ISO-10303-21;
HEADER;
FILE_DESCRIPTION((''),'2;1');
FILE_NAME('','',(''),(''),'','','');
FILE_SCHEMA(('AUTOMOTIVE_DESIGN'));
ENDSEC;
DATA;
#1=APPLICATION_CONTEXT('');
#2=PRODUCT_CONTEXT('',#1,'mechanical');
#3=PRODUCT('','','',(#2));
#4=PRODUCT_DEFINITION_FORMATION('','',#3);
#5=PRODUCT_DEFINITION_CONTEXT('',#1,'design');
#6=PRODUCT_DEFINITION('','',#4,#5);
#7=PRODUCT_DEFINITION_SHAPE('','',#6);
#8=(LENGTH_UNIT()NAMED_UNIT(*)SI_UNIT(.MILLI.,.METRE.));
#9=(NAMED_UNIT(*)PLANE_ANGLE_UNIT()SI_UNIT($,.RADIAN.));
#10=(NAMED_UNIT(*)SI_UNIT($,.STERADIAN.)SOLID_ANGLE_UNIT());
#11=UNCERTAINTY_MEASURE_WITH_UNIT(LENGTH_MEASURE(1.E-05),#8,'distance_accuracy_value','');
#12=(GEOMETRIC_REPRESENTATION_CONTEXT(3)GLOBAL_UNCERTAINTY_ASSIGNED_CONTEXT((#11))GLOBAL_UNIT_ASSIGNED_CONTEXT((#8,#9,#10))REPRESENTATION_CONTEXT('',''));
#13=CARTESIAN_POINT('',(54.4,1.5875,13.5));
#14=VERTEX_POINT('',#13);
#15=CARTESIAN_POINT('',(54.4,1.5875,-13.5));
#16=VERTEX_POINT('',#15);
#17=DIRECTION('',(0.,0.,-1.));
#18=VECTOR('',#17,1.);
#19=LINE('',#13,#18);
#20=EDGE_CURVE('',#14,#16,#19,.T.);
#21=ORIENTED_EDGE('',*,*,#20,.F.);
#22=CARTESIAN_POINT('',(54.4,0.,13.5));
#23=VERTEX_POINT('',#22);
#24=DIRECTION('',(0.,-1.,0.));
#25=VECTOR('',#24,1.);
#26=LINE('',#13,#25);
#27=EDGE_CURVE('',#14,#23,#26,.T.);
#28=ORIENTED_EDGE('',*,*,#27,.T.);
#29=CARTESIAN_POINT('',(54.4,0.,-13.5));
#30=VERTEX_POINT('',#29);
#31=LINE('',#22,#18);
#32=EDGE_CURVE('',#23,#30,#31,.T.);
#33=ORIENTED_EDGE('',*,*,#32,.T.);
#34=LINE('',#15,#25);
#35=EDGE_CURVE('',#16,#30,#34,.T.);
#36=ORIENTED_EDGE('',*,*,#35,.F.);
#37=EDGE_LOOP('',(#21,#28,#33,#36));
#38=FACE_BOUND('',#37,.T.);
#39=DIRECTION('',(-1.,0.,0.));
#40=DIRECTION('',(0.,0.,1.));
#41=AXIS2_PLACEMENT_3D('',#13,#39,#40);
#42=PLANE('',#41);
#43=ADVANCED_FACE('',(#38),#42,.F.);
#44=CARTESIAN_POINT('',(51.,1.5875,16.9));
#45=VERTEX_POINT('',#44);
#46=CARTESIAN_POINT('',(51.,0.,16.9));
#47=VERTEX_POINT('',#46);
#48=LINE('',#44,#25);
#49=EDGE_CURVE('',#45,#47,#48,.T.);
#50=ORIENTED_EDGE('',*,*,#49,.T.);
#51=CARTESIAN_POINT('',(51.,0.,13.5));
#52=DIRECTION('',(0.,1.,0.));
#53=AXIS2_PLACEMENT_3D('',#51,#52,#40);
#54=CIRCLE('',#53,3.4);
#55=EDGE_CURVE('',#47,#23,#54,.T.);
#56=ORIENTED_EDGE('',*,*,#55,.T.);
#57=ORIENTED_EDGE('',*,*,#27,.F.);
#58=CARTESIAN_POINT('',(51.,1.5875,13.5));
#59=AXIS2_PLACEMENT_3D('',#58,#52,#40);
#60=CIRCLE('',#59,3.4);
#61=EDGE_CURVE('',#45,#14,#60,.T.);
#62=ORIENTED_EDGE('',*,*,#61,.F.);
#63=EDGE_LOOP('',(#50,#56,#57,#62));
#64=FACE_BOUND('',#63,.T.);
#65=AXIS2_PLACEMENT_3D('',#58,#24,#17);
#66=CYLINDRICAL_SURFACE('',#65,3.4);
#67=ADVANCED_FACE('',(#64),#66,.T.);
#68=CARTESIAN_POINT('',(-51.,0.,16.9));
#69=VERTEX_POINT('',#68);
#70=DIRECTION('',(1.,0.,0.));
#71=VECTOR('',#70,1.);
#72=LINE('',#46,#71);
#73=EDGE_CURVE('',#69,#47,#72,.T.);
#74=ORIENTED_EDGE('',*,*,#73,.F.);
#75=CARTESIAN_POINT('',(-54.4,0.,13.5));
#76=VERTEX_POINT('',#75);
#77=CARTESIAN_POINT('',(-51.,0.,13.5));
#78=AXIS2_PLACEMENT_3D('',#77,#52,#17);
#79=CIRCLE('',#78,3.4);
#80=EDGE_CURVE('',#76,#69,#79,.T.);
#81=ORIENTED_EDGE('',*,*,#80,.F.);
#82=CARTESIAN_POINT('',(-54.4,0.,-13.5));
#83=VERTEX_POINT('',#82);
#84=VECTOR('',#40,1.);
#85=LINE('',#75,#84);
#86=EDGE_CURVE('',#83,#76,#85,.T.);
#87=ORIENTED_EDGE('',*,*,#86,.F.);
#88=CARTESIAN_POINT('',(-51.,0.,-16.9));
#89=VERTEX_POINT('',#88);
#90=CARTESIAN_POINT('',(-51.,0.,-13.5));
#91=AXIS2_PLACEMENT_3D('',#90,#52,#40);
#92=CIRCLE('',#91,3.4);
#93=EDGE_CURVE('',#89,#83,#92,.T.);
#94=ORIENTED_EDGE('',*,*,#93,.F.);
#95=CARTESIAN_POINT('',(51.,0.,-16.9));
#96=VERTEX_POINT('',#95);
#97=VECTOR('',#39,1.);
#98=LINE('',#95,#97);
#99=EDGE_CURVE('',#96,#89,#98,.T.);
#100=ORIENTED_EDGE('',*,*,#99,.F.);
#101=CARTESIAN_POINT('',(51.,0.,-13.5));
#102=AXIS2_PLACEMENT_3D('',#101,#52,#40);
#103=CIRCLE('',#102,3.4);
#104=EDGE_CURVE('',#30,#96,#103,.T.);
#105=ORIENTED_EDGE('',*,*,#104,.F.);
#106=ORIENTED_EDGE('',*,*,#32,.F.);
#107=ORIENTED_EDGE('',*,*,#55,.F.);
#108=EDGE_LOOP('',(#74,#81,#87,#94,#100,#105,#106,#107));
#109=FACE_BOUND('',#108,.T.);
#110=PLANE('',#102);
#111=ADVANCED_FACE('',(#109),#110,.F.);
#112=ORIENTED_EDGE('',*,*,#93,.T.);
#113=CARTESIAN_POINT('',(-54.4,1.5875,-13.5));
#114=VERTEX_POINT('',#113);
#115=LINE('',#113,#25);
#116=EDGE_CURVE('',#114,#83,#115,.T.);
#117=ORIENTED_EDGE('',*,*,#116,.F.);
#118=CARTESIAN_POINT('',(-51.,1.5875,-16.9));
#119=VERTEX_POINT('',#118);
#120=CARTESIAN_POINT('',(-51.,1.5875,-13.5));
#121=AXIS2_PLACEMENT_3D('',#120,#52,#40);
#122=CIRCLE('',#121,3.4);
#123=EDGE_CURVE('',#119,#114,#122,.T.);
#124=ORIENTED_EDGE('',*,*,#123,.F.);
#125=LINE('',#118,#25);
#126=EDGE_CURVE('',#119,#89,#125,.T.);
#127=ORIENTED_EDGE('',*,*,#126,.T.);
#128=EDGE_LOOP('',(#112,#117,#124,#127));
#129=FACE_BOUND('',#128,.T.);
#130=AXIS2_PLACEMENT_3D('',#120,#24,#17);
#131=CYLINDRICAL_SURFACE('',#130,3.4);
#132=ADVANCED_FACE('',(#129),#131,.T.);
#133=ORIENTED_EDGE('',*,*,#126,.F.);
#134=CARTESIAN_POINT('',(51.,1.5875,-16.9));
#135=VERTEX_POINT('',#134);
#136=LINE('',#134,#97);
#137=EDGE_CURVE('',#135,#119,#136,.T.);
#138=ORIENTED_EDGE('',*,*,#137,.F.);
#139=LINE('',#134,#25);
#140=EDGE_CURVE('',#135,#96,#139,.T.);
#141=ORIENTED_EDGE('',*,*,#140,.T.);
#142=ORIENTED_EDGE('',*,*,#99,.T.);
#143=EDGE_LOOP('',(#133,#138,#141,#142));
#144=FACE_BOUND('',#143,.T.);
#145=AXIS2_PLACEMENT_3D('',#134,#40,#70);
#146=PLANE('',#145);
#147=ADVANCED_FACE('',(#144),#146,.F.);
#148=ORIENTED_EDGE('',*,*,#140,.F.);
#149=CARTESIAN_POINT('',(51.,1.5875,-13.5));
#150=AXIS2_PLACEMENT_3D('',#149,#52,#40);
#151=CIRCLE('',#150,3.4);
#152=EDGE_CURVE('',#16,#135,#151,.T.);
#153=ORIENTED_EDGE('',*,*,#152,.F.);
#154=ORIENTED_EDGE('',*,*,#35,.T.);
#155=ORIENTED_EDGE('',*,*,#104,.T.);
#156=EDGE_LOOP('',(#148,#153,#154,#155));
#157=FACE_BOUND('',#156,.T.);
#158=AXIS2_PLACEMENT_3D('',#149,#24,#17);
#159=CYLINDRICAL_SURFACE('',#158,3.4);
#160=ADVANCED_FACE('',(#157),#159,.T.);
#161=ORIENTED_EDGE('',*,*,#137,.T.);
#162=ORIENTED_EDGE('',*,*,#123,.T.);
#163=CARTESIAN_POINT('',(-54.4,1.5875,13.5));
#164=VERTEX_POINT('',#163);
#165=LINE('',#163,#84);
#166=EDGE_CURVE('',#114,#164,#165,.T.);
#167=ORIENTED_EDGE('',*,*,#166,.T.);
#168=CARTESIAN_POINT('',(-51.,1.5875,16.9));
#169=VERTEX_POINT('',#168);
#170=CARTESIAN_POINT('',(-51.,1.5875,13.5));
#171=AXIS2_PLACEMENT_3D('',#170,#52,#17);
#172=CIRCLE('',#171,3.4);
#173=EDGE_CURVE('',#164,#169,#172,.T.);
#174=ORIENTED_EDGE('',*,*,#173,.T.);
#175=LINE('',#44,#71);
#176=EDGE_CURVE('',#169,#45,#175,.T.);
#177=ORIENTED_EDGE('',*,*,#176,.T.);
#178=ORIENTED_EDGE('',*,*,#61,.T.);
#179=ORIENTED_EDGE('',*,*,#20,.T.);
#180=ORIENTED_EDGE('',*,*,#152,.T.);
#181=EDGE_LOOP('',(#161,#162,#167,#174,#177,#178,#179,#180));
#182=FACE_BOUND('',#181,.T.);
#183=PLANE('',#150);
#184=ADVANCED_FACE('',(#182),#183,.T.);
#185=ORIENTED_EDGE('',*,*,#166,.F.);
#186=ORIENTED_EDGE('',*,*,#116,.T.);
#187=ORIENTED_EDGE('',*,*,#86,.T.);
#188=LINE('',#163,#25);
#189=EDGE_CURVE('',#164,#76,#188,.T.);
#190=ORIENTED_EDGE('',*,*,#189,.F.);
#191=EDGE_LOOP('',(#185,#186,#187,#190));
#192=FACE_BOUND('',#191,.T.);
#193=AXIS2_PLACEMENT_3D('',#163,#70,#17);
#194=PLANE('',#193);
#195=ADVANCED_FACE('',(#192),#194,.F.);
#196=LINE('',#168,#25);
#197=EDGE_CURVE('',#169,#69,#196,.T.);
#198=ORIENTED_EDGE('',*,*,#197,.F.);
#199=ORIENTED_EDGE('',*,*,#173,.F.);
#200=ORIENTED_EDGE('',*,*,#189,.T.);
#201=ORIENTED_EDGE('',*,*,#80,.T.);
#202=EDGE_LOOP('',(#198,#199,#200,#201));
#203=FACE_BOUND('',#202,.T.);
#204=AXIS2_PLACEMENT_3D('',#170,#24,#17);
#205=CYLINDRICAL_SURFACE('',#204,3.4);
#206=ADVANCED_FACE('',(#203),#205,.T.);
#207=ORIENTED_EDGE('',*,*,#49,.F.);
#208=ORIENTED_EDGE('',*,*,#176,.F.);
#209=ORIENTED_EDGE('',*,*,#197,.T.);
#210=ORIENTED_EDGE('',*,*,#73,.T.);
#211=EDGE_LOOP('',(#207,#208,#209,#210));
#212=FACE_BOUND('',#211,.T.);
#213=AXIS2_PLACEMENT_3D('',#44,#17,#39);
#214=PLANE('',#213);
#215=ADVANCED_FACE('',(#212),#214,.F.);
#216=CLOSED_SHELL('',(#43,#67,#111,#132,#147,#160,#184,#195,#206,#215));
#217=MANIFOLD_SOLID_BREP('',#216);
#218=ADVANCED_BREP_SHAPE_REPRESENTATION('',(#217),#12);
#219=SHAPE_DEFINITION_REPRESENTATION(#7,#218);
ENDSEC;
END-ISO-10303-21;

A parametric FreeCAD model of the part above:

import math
import FreeCAD as App
import Part
import Sketcher

doc = App.newDocument("Part")
body = doc.addObject("PartDesign::Body", "Body")

sketch1 = body.newObject("Sketcher::SketchObject", "Sketch")
sketch1.AttachmentSupport = (doc.getObject("XZ_Plane"), [""])
sketch1.MapMode = "FlatFace"
sketch1.addGeometry([
    Part.LineSegment(App.Vector(-51, 16.9, 0), App.Vector(51, 16.9, 0)),
    Part.ArcOfCircle(Part.Circle(App.Vector(51, 13.5, 0), App.Vector(0, 0, 1), 3.4), math.radians(0), math.radians(90)),
    Part.LineSegment(App.Vector(54.4, 13.5, 0), App.Vector(54.4, -13.5, 0)),
    Part.ArcOfCircle(Part.Circle(App.Vector(51, -13.5, 0), App.Vector(0, 0, 1), 3.4), math.radians(-90), math.radians(0)),
    Part.LineSegment(App.Vector(51, -16.9, 0), App.Vector(-51, -16.9, 0)),
    Part.ArcOfCircle(Part.Circle(App.Vector(-51, -13.5, 0), App.Vector(0, 0, 1), 3.4), math.radians(180), math.radians(270)),
    Part.LineSegment(App.Vector(-54.4, -13.5, 0), App.Vector(-54.4, 13.5, 0)),
    Part.ArcOfCircle(Part.Circle(App.Vector(-51, 13.5, 0), App.Vector(0, 0, 1), 3.4), math.radians(90), math.radians(180)),
], False)
sketch1.addConstraint([
    Sketcher.Constraint("Tangent", 0, 2, 1, 2),
    Sketcher.Constraint("Tangent", 1, 1, 2, 1),
    Sketcher.Constraint("Tangent", 2, 2, 3, 2),
    Sketcher.Constraint("Tangent", 3, 1, 4, 1),
    Sketcher.Constraint("Tangent", 4, 2, 5, 2),
    Sketcher.Constraint("Tangent", 5, 1, 6, 1),
    Sketcher.Constraint("Tangent", 6, 2, 7, 2),
    Sketcher.Constraint("Tangent", 7, 1, 0, 1),
    Sketcher.Constraint("Horizontal", 0),
    Sketcher.Constraint("Vertical", 2),
    Sketcher.Constraint("Horizontal", 4),
    Sketcher.Constraint("Vertical", 6),
    Sketcher.Constraint("Equal", 1, 3),
    Sketcher.Constraint("Equal", 3, 5),
    Sketcher.Constraint("Equal", 5, 7),
    Sketcher.Constraint("Symmetric", 1, 3, 5, 3, -1, 1),
    Sketcher.Constraint("Radius", 1, 3.4),
    Sketcher.Constraint("DistanceX", 0, 1, 0, 2, 102.0),
    Sketcher.Constraint("DistanceY", 2, 2, 2, 1, 27.0),
])
pad1 = body.newObject("PartDesign::Pad", "Pad")
pad1.Profile = sketch1
pad1.Length = 1.5875
pad1.Reversed = True

doc.recompute()
